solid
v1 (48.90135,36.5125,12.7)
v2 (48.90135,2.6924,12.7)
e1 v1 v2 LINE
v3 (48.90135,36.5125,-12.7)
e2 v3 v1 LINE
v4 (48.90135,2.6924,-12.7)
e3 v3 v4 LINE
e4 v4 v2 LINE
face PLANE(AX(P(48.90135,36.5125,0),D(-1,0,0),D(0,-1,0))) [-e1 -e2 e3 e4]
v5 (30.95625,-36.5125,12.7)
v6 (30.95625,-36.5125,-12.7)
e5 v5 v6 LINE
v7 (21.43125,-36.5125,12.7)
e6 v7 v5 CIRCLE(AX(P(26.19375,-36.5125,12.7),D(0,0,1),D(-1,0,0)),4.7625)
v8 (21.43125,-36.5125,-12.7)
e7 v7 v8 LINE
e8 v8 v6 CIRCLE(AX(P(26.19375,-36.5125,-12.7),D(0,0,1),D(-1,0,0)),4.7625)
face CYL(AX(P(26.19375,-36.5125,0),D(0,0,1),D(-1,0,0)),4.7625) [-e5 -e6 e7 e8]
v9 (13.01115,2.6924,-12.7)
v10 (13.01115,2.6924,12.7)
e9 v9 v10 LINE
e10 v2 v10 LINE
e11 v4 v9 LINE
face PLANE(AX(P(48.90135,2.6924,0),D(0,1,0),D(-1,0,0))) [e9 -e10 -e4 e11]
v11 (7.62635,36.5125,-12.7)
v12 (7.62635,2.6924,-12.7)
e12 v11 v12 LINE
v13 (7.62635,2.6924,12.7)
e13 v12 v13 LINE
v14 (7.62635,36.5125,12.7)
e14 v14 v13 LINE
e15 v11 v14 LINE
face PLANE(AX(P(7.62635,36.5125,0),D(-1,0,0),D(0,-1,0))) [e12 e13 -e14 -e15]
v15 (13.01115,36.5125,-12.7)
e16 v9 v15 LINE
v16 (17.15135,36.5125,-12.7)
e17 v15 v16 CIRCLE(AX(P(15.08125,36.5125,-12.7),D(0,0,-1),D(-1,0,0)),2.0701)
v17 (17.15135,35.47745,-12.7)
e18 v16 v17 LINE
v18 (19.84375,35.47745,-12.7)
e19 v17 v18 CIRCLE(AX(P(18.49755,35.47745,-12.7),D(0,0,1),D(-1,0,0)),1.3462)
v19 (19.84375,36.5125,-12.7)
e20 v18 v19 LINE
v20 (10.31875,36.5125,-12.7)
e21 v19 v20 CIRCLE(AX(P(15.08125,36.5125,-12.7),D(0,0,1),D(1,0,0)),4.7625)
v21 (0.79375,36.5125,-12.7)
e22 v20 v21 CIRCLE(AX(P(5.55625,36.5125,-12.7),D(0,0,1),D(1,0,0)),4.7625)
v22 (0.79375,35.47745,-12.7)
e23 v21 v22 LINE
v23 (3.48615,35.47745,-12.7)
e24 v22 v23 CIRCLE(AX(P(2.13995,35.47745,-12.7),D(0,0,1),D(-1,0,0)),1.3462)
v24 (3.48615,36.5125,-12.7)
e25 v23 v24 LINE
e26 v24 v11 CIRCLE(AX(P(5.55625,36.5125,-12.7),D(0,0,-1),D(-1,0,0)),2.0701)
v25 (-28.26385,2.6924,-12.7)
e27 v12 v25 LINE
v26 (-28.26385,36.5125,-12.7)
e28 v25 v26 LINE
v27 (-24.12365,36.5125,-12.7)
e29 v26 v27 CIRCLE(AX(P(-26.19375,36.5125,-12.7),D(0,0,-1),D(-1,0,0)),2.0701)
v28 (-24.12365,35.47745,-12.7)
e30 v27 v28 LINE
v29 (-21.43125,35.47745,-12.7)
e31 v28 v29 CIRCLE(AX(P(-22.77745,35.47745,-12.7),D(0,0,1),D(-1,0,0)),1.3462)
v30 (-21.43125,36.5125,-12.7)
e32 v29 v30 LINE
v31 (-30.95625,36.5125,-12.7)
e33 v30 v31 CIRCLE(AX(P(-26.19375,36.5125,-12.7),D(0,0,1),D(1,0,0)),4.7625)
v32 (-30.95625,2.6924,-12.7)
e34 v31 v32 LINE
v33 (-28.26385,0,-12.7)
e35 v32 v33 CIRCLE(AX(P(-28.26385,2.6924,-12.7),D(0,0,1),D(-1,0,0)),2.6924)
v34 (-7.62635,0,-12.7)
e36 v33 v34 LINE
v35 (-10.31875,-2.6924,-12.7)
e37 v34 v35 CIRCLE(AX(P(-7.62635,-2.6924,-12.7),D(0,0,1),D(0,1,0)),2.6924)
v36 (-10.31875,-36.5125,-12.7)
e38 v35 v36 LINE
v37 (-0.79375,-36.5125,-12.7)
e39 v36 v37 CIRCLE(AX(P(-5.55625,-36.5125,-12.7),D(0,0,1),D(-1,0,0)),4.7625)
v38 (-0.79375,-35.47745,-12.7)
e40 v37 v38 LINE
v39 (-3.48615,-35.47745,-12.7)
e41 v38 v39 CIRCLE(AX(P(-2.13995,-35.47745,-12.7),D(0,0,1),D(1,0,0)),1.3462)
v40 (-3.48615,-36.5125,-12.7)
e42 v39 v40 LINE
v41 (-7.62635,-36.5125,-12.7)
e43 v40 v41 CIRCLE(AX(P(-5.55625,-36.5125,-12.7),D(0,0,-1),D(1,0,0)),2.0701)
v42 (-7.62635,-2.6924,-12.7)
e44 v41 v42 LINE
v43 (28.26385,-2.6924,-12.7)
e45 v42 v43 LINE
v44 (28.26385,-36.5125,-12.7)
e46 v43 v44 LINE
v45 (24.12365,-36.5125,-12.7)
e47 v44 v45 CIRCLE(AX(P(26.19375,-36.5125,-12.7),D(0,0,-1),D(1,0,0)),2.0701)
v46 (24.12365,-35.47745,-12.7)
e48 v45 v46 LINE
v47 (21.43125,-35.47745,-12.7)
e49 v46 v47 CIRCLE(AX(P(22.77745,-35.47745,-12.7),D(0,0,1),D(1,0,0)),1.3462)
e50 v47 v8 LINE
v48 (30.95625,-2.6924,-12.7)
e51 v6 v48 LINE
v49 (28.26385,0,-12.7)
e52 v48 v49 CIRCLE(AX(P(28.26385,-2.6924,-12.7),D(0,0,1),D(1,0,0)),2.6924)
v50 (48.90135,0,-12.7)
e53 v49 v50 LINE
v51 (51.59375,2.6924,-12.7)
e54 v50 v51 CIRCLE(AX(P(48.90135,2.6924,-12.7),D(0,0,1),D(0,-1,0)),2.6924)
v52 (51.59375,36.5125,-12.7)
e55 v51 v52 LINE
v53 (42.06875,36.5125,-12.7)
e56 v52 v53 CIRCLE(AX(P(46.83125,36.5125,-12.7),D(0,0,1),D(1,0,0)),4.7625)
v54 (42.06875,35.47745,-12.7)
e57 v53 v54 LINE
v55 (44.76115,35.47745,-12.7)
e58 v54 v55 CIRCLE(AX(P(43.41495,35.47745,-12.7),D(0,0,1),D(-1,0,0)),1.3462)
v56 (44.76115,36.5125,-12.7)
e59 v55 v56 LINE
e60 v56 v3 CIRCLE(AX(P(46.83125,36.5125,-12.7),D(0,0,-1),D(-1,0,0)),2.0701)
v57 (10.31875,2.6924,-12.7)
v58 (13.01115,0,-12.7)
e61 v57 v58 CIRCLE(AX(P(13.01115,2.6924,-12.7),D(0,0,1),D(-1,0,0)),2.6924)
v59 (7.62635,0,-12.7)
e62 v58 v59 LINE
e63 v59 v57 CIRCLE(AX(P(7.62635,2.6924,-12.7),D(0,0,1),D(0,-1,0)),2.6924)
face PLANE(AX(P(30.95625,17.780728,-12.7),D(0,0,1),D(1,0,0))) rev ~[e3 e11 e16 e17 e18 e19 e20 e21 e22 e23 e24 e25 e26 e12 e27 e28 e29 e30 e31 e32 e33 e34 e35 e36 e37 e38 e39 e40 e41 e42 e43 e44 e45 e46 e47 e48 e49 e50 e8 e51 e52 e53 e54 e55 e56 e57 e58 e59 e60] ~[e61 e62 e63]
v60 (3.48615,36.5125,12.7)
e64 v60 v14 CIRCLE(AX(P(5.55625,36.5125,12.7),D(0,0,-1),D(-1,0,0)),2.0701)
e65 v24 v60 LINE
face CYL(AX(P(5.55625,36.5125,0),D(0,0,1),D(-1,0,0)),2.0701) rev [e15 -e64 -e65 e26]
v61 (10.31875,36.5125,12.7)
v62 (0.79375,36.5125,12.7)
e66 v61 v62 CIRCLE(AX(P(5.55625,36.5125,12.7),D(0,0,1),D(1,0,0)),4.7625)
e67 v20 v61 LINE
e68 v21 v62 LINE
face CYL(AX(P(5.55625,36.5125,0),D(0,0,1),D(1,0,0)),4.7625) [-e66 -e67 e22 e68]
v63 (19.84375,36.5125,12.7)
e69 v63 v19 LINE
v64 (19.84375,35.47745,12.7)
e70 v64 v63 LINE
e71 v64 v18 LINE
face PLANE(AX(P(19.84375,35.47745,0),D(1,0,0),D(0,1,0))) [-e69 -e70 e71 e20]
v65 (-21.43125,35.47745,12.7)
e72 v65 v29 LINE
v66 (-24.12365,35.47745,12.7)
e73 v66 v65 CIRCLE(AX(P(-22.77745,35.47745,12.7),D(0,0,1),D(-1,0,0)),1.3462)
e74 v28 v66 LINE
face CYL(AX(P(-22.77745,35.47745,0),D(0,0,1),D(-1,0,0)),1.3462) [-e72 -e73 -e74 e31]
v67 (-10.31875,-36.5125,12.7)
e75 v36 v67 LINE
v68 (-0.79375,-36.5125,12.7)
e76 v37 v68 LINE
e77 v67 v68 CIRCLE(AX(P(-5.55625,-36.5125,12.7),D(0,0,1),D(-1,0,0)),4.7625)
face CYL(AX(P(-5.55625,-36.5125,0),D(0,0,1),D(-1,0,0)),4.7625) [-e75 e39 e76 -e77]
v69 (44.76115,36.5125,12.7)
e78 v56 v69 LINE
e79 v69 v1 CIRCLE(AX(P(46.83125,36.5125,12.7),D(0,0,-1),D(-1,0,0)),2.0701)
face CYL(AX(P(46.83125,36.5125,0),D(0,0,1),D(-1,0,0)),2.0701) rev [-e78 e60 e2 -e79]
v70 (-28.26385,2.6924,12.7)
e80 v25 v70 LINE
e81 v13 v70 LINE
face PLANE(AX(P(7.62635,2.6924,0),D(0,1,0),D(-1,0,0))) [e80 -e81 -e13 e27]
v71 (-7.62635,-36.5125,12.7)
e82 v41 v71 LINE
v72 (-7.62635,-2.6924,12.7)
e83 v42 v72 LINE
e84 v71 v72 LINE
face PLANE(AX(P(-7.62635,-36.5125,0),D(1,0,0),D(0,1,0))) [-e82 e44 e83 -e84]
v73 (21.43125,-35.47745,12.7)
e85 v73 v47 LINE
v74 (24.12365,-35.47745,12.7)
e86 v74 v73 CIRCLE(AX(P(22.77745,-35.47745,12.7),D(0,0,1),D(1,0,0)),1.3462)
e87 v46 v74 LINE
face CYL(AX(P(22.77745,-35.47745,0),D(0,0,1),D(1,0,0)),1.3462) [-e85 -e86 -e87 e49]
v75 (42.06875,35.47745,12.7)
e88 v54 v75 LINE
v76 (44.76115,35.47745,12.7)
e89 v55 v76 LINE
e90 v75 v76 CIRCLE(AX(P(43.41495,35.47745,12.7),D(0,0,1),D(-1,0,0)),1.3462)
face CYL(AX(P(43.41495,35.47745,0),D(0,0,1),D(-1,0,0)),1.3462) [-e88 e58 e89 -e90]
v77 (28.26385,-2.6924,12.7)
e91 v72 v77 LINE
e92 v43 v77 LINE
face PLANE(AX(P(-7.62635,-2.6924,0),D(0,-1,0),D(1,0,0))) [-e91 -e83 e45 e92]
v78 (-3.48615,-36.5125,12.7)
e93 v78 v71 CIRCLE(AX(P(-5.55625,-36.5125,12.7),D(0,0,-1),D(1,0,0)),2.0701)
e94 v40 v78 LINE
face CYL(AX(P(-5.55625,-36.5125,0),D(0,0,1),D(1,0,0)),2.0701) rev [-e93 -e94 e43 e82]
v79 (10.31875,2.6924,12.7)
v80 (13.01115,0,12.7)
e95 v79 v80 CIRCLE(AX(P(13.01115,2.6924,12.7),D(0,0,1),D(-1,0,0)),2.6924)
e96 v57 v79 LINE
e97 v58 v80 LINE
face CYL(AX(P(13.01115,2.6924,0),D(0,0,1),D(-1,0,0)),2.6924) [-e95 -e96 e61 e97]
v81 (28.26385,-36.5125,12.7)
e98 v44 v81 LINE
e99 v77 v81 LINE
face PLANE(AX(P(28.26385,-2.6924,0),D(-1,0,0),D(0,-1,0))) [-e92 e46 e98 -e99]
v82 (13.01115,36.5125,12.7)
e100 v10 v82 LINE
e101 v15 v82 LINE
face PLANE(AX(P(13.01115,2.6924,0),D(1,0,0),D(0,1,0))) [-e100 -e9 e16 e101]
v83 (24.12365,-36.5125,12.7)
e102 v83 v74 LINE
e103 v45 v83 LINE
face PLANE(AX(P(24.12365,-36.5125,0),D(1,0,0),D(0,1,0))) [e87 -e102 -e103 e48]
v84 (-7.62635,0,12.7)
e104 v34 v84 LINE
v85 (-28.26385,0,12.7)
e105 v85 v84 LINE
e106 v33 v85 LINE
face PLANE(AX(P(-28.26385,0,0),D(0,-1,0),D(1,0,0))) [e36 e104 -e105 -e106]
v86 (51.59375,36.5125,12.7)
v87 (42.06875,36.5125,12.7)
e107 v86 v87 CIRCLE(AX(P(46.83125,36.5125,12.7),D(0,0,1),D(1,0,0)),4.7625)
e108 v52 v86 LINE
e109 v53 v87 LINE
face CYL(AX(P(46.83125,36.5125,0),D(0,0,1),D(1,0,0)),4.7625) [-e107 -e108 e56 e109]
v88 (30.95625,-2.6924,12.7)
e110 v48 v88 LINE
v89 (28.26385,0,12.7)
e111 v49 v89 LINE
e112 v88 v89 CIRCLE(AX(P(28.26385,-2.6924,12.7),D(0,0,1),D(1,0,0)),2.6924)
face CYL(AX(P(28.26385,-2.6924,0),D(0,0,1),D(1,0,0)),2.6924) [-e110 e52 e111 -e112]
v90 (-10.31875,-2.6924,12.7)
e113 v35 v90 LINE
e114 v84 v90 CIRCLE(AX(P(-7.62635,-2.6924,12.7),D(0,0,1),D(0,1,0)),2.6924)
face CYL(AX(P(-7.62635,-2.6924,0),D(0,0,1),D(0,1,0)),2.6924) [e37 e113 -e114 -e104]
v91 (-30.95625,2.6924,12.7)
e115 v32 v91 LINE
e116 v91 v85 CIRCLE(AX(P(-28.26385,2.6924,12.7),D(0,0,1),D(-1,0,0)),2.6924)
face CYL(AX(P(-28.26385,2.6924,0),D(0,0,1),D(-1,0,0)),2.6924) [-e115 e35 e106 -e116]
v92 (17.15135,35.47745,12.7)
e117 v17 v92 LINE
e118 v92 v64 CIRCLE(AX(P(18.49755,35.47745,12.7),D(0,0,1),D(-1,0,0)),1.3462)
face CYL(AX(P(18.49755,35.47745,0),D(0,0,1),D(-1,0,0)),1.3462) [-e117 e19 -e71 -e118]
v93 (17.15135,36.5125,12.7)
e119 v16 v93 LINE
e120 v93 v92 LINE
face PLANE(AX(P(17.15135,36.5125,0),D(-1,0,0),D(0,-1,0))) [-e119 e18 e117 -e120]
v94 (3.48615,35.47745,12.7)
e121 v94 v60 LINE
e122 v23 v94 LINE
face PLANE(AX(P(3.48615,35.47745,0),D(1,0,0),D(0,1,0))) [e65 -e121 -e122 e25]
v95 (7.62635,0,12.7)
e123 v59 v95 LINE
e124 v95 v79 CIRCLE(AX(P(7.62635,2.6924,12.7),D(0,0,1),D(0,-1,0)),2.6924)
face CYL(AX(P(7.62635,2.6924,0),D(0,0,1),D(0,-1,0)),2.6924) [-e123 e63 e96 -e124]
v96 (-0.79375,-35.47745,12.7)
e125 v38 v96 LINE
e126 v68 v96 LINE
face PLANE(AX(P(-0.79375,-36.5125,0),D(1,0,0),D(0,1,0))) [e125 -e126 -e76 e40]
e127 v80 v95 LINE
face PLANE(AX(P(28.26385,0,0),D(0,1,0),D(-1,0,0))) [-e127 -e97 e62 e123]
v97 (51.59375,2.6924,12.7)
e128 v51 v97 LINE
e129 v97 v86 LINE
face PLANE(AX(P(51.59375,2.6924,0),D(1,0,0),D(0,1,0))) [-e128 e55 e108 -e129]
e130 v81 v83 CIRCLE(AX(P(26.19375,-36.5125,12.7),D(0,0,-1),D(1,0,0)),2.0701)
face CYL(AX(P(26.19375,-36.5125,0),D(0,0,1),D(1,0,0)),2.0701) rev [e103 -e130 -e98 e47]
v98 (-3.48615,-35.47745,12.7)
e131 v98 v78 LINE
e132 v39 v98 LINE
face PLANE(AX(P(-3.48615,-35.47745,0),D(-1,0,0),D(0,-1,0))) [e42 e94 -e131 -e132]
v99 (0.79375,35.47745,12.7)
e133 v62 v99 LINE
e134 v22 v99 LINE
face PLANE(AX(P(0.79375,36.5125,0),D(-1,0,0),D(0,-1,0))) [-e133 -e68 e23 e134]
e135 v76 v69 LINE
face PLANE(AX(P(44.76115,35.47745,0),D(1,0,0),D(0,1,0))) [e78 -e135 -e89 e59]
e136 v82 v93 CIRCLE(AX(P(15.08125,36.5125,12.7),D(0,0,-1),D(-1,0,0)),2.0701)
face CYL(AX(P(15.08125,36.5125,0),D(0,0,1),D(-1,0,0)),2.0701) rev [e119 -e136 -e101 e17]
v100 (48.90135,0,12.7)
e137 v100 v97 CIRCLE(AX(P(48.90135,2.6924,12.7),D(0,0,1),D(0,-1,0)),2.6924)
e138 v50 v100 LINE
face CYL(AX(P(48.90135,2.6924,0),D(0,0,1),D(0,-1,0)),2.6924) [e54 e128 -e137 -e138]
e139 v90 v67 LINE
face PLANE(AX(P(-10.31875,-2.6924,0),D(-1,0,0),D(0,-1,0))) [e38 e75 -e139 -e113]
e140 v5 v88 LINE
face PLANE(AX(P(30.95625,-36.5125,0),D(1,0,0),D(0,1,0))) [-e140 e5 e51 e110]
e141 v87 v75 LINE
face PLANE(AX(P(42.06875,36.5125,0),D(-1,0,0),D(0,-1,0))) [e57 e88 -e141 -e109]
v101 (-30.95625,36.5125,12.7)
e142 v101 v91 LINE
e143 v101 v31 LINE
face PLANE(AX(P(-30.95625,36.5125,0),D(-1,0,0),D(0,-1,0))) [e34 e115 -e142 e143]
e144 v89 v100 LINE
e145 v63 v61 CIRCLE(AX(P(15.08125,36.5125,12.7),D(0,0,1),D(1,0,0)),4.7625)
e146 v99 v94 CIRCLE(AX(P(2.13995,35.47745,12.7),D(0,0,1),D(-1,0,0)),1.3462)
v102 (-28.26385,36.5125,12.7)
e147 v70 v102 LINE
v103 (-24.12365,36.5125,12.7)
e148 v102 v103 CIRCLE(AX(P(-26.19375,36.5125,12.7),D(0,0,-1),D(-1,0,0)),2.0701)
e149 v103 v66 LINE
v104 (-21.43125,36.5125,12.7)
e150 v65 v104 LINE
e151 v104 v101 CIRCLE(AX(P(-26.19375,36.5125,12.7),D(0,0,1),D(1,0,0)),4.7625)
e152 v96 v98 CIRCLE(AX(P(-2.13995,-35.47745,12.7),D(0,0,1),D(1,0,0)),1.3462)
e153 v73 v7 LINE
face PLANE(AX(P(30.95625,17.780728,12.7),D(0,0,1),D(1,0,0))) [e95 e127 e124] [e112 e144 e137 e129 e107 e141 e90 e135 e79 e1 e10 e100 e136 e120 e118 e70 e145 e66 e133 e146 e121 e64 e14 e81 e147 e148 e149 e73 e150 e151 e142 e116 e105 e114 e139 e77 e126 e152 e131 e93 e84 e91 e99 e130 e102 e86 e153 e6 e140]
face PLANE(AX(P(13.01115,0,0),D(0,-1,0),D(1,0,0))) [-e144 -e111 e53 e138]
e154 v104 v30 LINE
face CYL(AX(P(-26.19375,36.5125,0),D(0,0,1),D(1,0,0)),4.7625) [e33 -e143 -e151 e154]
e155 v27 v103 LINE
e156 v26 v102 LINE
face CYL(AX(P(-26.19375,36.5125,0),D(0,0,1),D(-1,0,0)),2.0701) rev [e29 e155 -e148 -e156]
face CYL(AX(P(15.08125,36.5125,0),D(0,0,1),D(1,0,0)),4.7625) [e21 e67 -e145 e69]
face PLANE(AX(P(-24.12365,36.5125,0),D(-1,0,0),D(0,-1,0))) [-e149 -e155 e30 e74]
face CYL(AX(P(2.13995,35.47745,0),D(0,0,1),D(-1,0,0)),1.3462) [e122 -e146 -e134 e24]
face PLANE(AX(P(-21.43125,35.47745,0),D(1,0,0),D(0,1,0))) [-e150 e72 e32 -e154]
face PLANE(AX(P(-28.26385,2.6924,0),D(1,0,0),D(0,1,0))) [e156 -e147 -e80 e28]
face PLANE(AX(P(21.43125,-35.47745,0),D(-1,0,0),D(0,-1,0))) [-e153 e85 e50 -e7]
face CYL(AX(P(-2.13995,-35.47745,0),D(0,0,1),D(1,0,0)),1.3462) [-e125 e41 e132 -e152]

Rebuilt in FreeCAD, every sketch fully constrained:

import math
import FreeCAD as App
import Part
import Sketcher

V = App.Vector
Q = App.Units.Quantity

doc = App.newDocument("Part")
params = doc.addObject("Spreadsheet::Sheet", "Params")
for row, (alias, value) in enumerate([
    ("sketch1_radius", "0.106 in"),
    ("sketch1_radius2", "0.1875 in"),
    ("sketch1_width", "1.413 in"),
    ("pad1_length", "1 in"),
    ("linearpattern_pitch", "1.625 in"),
], start=1):
    params.set(f"A{row}", alias)
    params.set(f"B{row}", "=" + value)
    params.setAlias(f"B{row}", alias)

body = doc.addObject("PartDesign::Body", "Body")

# Sketch on XY plane
sketch1 = body.newObject("Sketcher::SketchObject", "Sketch")
sketch1.AttachmentSupport = (doc.getObject("XY_Plane"), [""])
sketch1.MapMode = "FlatFace"
sketch1.addGeometry(Part.LineSegment(V(-31, 36.5, 0), V(-31, 2.7, 0)), False)
sketch1.addGeometry(Part.ArcOfCircle(Part.Circle(V(-28.3, 2.7, 0), V(0, 0, 1), 2.7), math.radians(180), math.radians(270)), False)
sketch1.addGeometry(Part.LineSegment(V(-28.3, 0, 0), V(7.6, 0, 0)), False)
sketch1.addGeometry(Part.ArcOfCircle(Part.Circle(V(7.6, 2.7, 0), V(0, 0, 1), 2.7), math.radians(-90), math.radians(0)), False)
sketch1.addGeometry(Part.LineSegment(V(10.3, 2.7, 0), V(10.3, 36.5, 0)), False)
sketch1.addGeometry(Part.ArcOfCircle(Part.Circle(V(5.6, 36.5, 0), V(0, 0, 1), 4.8), math.radians(0), math.radians(180)), False)
sketch1.addGeometry(Part.LineSegment(V(0.8, 36.5, 0), V(0.8, 35.5, 0)), False)
sketch1.addGeometry(Part.ArcOfCircle(Part.Circle(V(2.1, 35.5, 0), V(0, 0, 1), 1.3), math.radians(180), math.radians(360)), False)
sketch1.addGeometry(Part.LineSegment(V(3.5, 35.5, 0), V(3.5, 36.5, 0)), False)
sketch1.addGeometry(Part.ArcOfCircle(Part.Circle(V(5.6, 36.5, 0), V(0, 0, 1), 2.1), math.radians(0), math.radians(180)), False)
sketch1.addGeometry(Part.LineSegment(V(7.6, 36.5, 0), V(7.6, 2.7, 0)), False)
sketch1.addGeometry(Part.LineSegment(V(7.6, 2.7, 0), V(-28.3, 2.7, 0)), False)
sketch1.addGeometry(Part.LineSegment(V(-28.3, 2.7, 0), V(-28.3, 36.5, 0)), False)
sketch1.addGeometry(Part.ArcOfCircle(Part.Circle(V(-26.2, 36.5, 0), V(0, 0, 1), 2.1), math.radians(0), math.radians(180)), False)
sketch1.addGeometry(Part.LineSegment(V(-24.1, 36.5, 0), V(-24.1, 35.5, 0)), False)
sketch1.addGeometry(Part.ArcOfCircle(Part.Circle(V(-22.8, 35.5, 0), V(0, 0, 1), 1.3), math.radians(180), math.radians(360)), False)
sketch1.addGeometry(Part.LineSegment(V(-21.4, 35.5, 0), V(-21.4, 36.5, 0)), False)
sketch1.addGeometry(Part.ArcOfCircle(Part.Circle(V(-26.2, 36.5, 0), V(0, 0, 1), 4.8), math.radians(0), math.radians(180)), False)
sketch1.addConstraint(Sketcher.Constraint("Tangent", 0, 2, 1, 1))
sketch1.addConstraint(Sketcher.Constraint("Tangent", 1, 2, 2, 1))
sketch1.addConstraint(Sketcher.Constraint("Tangent", 2, 2, 3, 1))
sketch1.addConstraint(Sketcher.Constraint("Tangent", 3, 2, 4, 1))
sketch1.addConstraint(Sketcher.Constraint("Tangent", 4, 2, 5, 1))
sketch1.addConstraint(Sketcher.Constraint("Tangent", 5, 2, 6, 1))
sketch1.addConstraint(Sketcher.Constraint("Tangent", 6, 2, 7, 1))
sketch1.addConstraint(Sketcher.Constraint("Tangent", 7, 2, 8, 1))
sketch1.addConstraint(Sketcher.Constraint("Tangent", 8, 2, 9, 2))
sketch1.addConstraint(Sketcher.Constraint("Tangent", 9, 1, 10, 1))
sketch1.addConstraint(Sketcher.Constraint("Coincident", 10, 2, 11, 1))
sketch1.addConstraint(Sketcher.Constraint("Coincident", 11, 2, 12, 1))
sketch1.addConstraint(Sketcher.Constraint("Tangent", 12, 2, 13, 2))
sketch1.addConstraint(Sketcher.Constraint("Tangent", 13, 1, 14, 1))
sketch1.addConstraint(Sketcher.Constraint("Tangent", 14, 2, 15, 1))
sketch1.addConstraint(Sketcher.Constraint("Tangent", 15, 2, 16, 1))
sketch1.addConstraint(Sketcher.Constraint("Tangent", 16, 2, 17, 1))
sketch1.addConstraint(Sketcher.Constraint("Tangent", 17, 2, 0, 1))
sketch1.addConstraint(Sketcher.Constraint("Vertical", 0))
sketch1.addConstraint(Sketcher.Constraint("Horizontal", 2))
sketch1.addConstraint(Sketcher.Constraint("Vertical", 4))
sketch1.addConstraint(Sketcher.Constraint("Vertical", 6))
sketch1.addConstraint(Sketcher.Constraint("Vertical", 8))
sketch1.addConstraint(Sketcher.Constraint("Vertical", 10))
sketch1.addConstraint(Sketcher.Constraint("Horizontal", 11))
sketch1.addConstraint(Sketcher.Constraint("Vertical", 12))
sketch1.addConstraint(Sketcher.Constraint("Vertical", 14))
sketch1.addConstraint(Sketcher.Constraint("Vertical", 16))
sketch1.addConstraint(Sketcher.Constraint("Coincident", 9, 3, 5, 3))
sketch1.addConstraint(Sketcher.Constraint("Coincident", 17, 3, 13, 3))
sketch1.addConstraint(Sketcher.Constraint("Coincident", 10, 2, 3, 3))
sketch1.addConstraint(Sketcher.Constraint("Coincident", 11, 2, 1, 3))
sketch1.addConstraint(Sketcher.Constraint("Equal", 9, 13))
sketch1.addConstraint(Sketcher.Constraint("PointOnObject", 1, 2, -1))
sketch1.addConstraint(Sketcher.Constraint("Horizontal", 9, 3, 13, 3))
sketch1.addConstraint(Sketcher.Constraint("Horizontal", 7, 3, 15, 3))
sketch1.addConstraint(Sketcher.Constraint("Radius", 1, Q("0.106 in")))
sketch1.addConstraint(Sketcher.Constraint("Radius", 5, Q("0.1875 in")))
sketch1.addConstraint(Sketcher.Constraint("DistanceX", 2, 1, 2, 2, Q("1.413 in")))
sketch1.addConstraint(Sketcher.Constraint("DistanceY", 0, 2, 0, 1, Q("1.3315 in")))
sketch1.addConstraint(Sketcher.Constraint("DistanceX", -1, 1, 5, 3, Q("0.21875 in")))
sketch1.addConstraint(Sketcher.Constraint("DistanceY", 6, 2, 6, 1, Q("1.03505 mm")))
sketch1.setExpression("Constraints[36]", "Params.sketch1_radius")
sketch1.setExpression("Constraints[37]", "Params.sketch1_radius2")
sketch1.setExpression("Constraints[38]", "Params.sketch1_width")
pad1 = body.newObject("PartDesign::Pad", "Pad")
pad1.Profile = sketch1
pad1.setExpression("Length", "Params.pad1_length")
pad1.Midplane = True
doc.recompute()

polarpattern = body.newObject("PartDesign::PolarPattern", "PolarPattern")
polarpattern.Originals = [pad1]
polarpattern.Axis = (doc.getObject("Z_Axis"), [""])
polarpattern.Angle = 360
polarpattern.Occurrences = 2
body.Tip = polarpattern
doc.recompute()

linearpattern = body.newObject("PartDesign::LinearPattern", "LinearPattern")
linearpattern.Originals = [pad1]
linearpattern.Direction = (doc.getObject("X_Axis"), [""])
linearpattern.Mode = "offset"
linearpattern.setExpression("Offset", "Params.linearpattern_pitch")
linearpattern.Occurrences = 2
body.Tip = linearpattern

doc.recompute()
